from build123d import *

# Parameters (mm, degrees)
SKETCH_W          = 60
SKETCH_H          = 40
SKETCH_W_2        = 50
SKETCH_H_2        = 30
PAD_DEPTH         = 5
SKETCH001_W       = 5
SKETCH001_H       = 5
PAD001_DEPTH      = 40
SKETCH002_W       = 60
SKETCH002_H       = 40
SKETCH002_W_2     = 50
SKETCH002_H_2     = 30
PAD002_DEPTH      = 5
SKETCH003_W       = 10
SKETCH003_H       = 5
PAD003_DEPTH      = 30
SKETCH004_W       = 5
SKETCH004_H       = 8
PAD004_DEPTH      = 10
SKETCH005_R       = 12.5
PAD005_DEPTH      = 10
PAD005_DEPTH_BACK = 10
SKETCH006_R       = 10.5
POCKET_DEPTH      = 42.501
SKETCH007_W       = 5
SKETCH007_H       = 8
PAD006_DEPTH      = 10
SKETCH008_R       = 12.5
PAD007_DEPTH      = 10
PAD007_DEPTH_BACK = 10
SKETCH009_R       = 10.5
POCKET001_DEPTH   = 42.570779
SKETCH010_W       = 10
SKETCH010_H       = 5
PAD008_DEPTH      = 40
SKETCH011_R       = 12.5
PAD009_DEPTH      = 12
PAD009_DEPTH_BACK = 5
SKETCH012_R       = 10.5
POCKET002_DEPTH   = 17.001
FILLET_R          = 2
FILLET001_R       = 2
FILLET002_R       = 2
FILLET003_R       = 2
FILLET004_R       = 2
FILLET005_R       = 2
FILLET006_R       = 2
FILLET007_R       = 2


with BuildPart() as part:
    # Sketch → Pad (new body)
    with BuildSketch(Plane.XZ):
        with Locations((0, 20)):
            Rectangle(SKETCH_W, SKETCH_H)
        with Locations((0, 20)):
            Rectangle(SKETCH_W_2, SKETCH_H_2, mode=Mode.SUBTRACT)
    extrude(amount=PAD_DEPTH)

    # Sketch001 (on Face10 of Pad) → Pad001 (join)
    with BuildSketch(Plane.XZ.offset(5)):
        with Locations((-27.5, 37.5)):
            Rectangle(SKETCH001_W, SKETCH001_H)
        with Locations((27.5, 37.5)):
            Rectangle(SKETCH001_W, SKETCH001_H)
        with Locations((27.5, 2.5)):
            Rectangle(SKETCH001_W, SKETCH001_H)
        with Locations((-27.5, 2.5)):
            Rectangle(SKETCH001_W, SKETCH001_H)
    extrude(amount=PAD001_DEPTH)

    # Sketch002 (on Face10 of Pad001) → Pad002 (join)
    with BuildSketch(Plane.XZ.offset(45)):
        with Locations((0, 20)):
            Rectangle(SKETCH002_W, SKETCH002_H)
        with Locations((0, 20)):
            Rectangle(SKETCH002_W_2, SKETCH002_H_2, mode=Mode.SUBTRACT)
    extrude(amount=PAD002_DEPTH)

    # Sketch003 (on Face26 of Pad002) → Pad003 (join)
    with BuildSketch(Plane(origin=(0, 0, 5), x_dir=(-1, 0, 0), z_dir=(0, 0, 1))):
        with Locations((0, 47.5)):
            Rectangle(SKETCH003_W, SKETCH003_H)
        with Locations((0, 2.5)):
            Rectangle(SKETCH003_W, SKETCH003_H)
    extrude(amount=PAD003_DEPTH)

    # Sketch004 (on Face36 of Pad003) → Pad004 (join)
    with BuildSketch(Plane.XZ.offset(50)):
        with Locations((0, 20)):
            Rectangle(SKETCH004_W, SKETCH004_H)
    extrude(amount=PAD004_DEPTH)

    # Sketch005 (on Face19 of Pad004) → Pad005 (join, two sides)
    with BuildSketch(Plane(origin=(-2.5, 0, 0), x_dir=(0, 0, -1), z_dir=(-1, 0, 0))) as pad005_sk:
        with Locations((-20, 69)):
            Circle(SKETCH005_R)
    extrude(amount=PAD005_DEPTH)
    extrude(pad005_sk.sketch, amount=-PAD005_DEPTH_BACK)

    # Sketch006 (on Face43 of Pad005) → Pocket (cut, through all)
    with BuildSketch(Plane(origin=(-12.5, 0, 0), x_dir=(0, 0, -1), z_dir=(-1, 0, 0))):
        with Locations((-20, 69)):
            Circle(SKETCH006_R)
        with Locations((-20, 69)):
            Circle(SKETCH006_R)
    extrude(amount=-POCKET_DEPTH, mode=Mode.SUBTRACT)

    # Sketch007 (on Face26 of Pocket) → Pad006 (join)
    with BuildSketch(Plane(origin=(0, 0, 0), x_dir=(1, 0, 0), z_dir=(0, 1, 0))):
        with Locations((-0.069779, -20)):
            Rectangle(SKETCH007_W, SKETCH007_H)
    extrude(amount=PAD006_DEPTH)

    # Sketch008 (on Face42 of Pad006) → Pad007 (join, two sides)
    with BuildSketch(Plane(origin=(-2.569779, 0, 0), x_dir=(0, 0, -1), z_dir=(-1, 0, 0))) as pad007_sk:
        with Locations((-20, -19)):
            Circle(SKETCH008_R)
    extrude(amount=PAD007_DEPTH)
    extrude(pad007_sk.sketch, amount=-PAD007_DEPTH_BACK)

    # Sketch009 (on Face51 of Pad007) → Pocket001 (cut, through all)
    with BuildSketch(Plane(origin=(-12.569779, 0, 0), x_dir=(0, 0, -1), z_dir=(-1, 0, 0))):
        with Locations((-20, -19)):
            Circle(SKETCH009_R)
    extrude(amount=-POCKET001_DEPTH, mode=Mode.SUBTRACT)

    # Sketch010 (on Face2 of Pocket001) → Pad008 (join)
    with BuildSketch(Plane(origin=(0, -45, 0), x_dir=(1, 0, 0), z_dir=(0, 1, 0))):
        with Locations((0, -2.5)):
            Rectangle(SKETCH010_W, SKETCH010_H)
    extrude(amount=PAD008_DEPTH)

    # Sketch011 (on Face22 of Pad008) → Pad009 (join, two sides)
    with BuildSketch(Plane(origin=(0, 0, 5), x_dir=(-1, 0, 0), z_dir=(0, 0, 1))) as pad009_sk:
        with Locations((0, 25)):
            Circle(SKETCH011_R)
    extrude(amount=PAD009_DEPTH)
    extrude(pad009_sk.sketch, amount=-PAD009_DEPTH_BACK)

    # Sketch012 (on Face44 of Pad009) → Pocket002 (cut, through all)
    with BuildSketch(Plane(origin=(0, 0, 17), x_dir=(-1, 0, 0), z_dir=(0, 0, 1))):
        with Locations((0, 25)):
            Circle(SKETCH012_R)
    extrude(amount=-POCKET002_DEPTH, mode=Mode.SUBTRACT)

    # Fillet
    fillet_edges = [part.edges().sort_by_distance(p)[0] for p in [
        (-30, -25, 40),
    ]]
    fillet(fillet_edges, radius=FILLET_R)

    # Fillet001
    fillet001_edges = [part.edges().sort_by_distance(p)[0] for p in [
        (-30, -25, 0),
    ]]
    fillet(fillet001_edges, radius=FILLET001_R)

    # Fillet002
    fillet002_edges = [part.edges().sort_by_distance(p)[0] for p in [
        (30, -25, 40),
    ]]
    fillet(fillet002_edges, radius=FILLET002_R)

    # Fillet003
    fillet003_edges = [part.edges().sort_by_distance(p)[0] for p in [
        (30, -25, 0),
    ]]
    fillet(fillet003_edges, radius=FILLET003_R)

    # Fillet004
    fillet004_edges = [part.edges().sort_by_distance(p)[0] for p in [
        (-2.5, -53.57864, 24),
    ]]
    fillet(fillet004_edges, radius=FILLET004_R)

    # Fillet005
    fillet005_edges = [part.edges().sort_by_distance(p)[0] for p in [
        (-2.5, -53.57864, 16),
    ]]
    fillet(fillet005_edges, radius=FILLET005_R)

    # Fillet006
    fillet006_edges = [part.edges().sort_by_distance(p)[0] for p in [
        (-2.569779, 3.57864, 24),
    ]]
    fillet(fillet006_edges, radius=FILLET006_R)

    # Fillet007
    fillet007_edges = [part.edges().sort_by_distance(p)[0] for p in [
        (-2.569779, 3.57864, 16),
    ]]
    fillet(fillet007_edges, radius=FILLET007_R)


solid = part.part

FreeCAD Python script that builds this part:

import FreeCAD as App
import Part
import Sketcher


def edges_at(feature, points):
    """Names of the edges that pass closest to the given points."""
    edges = feature.Shape.Edges
    near = lambda p: min(range(len(edges)), key=lambda i: edges[i].distToShape(Part.Vertex(*p))[0])
    return sorted({f"Edge{near(p) + 1}" for p in points})

doc = App.newDocument("Part")
body = doc.addObject("PartDesign::Body", "Body")

sketch1 = body.newObject("Sketcher::SketchObject", "Sketch")
sketch1.AttachmentSupport = (doc.getObject("XZ_Plane"), [""])
sketch1.MapMode = "FlatFace"
sketch1.addGeometry([
    Part.LineSegment(App.Vector(-30, 40, 0), App.Vector(-30, 0, 0)),
    Part.LineSegment(App.Vector(-30, 0, 0), App.Vector(30, 0, 0)),
    Part.LineSegment(App.Vector(30, 0, 0), App.Vector(30, 40, 0)),
    Part.LineSegment(App.Vector(30, 40, 0), App.Vector(-30, 40, 0)),
    Part.LineSegment(App.Vector(25, 5, 0), App.Vector(-25, 5, 0)),
    Part.LineSegment(App.Vector(-25, 5, 0), App.Vector(-25, 35, 0)),
    Part.LineSegment(App.Vector(-25, 35, 0), App.Vector(25, 35, 0)),
    Part.LineSegment(App.Vector(25, 35, 0), App.Vector(25, 5, 0)),
], False)
sketch1.addConstraint([
    Sketcher.Constraint("Coincident", 0, 2, 1, 1),
    Sketcher.Constraint("Coincident", 1, 2, 2, 1),
    Sketcher.Constraint("Coincident", 2, 2, 3, 1),
    Sketcher.Constraint("Coincident", 3, 2, 0, 1),
    Sketcher.Constraint("Coincident", 4, 2, 5, 1),
    Sketcher.Constraint("Coincident", 5, 2, 6, 1),
    Sketcher.Constraint("Coincident", 6, 2, 7, 1),
    Sketcher.Constraint("Coincident", 7, 2, 4, 1),
    Sketcher.Constraint("Vertical", 0),
    Sketcher.Constraint("Horizontal", 1),
    Sketcher.Constraint("Vertical", 2),
    Sketcher.Constraint("Horizontal", 3),
    Sketcher.Constraint("Horizontal", 4),
    Sketcher.Constraint("Vertical", 5),
    Sketcher.Constraint("Horizontal", 6),
    Sketcher.Constraint("Vertical", 7),
    Sketcher.Constraint("Symmetric", 0, 2, 1, 2, -1, 1),
    Sketcher.Constraint("DistanceX", 1, 1, 1, 2, 60.0),
    Sketcher.Constraint("DistanceX", 4, 2, 4, 1, 50.0),
    Sketcher.Constraint("DistanceY", 0, 2, 0, 1, 40.0),
    Sketcher.Constraint("DistanceY", 5, 1, 5, 2, 30.0),
    Sketcher.Constraint("DistanceX", 4, 2, -1, 1, 25.0),
    Sketcher.Constraint("DistanceY", -1, 1, 4, 2, 5.0),
])
pad1 = body.newObject("PartDesign::Pad", "Pad")
pad1.Profile = sketch1
pad1.Length = 5

sketch2 = body.newObject("Sketcher::SketchObject", "Sketch001")
sketch2.AttachmentSupport = (doc.getObject("XZ_Plane"), [""])
sketch2.MapMode = "FlatFace"
sketch2.AttachmentOffset = App.Placement(App.Vector(0, 0, 5), App.Rotation())
sketch2.addGeometry([
    Part.LineSegment(App.Vector(-30, 40, 0), App.Vector(-30, 35, 0)),
    Part.LineSegment(App.Vector(-30, 35, 0), App.Vector(-25, 35, 0)),
    Part.LineSegment(App.Vector(-25, 35, 0), App.Vector(-25, 40, 0)),
    Part.LineSegment(App.Vector(-25, 40, 0), App.Vector(-30, 40, 0)),
    Part.LineSegment(App.Vector(25, 40, 0), App.Vector(25, 35, 0)),
    Part.LineSegment(App.Vector(25, 35, 0), App.Vector(30, 35, 0)),
    Part.LineSegment(App.Vector(30, 35, 0), App.Vector(30, 40, 0)),
    Part.LineSegment(App.Vector(30, 40, 0), App.Vector(25, 40, 0)),
    Part.LineSegment(App.Vector(25, 5, 0), App.Vector(25, 0, 0)),
    Part.LineSegment(App.Vector(25, 0, 0), App.Vector(30, 0, 0)),
    Part.LineSegment(App.Vector(30, 0, 0), App.Vector(30, 5, 0)),
    Part.LineSegment(App.Vector(30, 5, 0), App.Vector(25, 5, 0)),
    Part.LineSegment(App.Vector(-30, 5, 0), App.Vector(-30, 0, 0)),
    Part.LineSegment(App.Vector(-30, 0, 0), App.Vector(-25, 0, 0)),
    Part.LineSegment(App.Vector(-25, 0, 0), App.Vector(-25, 5, 0)),
    Part.LineSegment(App.Vector(-25, 5, 0), App.Vector(-30, 5, 0)),
], False)
sketch2.addConstraint([
    Sketcher.Constraint("Coincident", 0, 2, 1, 1),
    Sketcher.Constraint("Coincident", 1, 2, 2, 1),
    Sketcher.Constraint("Coincident", 2, 2, 3, 1),
    Sketcher.Constraint("Coincident", 3, 2, 0, 1),
    Sketcher.Constraint("Coincident", 4, 2, 5, 1),
    Sketcher.Constraint("Coincident", 5, 2, 6, 1),
    Sketcher.Constraint("Coincident", 6, 2, 7, 1),
    Sketcher.Constraint("Coincident", 7, 2, 4, 1),
    Sketcher.Constraint("Coincident", 8, 2, 9, 1),
    Sketcher.Constraint("Coincident", 9, 2, 10, 1),
    Sketcher.Constraint("Coincident", 10, 2, 11, 1),
    Sketcher.Constraint("Coincident", 11, 2, 8, 1),
    Sketcher.Constraint("Coincident", 12, 2, 13, 1),
    Sketcher.Constraint("Coincident", 13, 2, 14, 1),
    Sketcher.Constraint("Coincident", 14, 2, 15, 1),
    Sketcher.Constraint("Coincident", 15, 2, 12, 1),
    Sketcher.Constraint("Vertical", 0),
    Sketcher.Constraint("Horizontal", 1),
    Sketcher.Constraint("Vertical", 2),
    Sketcher.Constraint("Horizontal", 3),
    Sketcher.Constraint("Vertical", 4),
    Sketcher.Constraint("Horizontal", 5),
    Sketcher.Constraint("Vertical", 6),
    Sketcher.Constraint("Horizontal", 7),
    Sketcher.Constraint("Vertical", 8),
    Sketcher.Constraint("Horizontal", 9),
    Sketcher.Constraint("Vertical", 10),
    Sketcher.Constraint("Horizontal", 11),
    Sketcher.Constraint("Vertical", 12),
    Sketcher.Constraint("Horizontal", 13),
    Sketcher.Constraint("Vertical", 14),
    Sketcher.Constraint("Horizontal", 15),
    Sketcher.Constraint("Symmetric", 9, 2, 12, 2, -1, 1),
    Sketcher.Constraint("Symmetric", 1, 2, 4, 2, -2),
    Sketcher.Constraint("Symmetric", 3, 2, 6, 2, -2),
    Sketcher.Constraint("Symmetric", 8, 2, 13, 2, -2),
    Sketcher.Constraint("Horizontal", 11, 2, 14, 2),
    Sketcher.Constraint("Vertical", 7, 2, 8, 2),
    Sketcher.Constraint("Vertical", 6, 2, 9, 2),
    Sketcher.Constraint("Equal", 15, 0),
    Sketcher.Constraint("Equal", 6, 8),
    Sketcher.Constraint("DistanceX", 1, 1, 1, 2, 5.0),
    Sketcher.Constraint("DistanceX", 0, 2, -1, 1, 30.0),
    Sketcher.Constraint("DistanceY", -1, 1, 0, 2, 35.0),
])
pad2 = body.newObject("PartDesign::Pad", "Pad001")
pad2.Profile = sketch2
pad2.Length = 40

sketch3 = body.newObject("Sketcher::SketchObject", "Sketch002")
sketch3.AttachmentSupport = (doc.getObject("XZ_Plane"), [""])
sketch3.MapMode = "FlatFace"
sketch3.AttachmentOffset = App.Placement(App.Vector(0, 0, 45), App.Rotation())
sketch3.addGeometry([
    Part.LineSegment(App.Vector(-30, 40, 0), App.Vector(-30, 0, 0)),
    Part.LineSegment(App.Vector(-30, 0, 0), App.Vector(30, 0, 0)),
    Part.LineSegment(App.Vector(30, 0, 0), App.Vector(30, 40, 0)),
    Part.LineSegment(App.Vector(30, 40, 0), App.Vector(-30, 40, 0)),
    Part.LineSegment(App.Vector(25, 5, 0), App.Vector(-25, 5, 0)),
    Part.LineSegment(App.Vector(-25, 5, 0), App.Vector(-25, 35, 0)),
    Part.LineSegment(App.Vector(-25, 35, 0), App.Vector(25, 35, 0)),
    Part.LineSegment(App.Vector(25, 35, 0), App.Vector(25, 5, 0)),
], False)
sketch3.addConstraint([
    Sketcher.Constraint("Coincident", 0, 2, 1, 1),
    Sketcher.Constraint("Coincident", 1, 2, 2, 1),
    Sketcher.Constraint("Coincident", 2, 2, 3, 1),
    Sketcher.Constraint("Coincident", 3, 2, 0, 1),
    Sketcher.Constraint("Coincident", 4, 2, 5, 1),
    Sketcher.Constraint("Coincident", 5, 2, 6, 1),
    Sketcher.Constraint("Coincident", 6, 2, 7, 1),
    Sketcher.Constraint("Coincident", 7, 2, 4, 1),
    Sketcher.Constraint("Vertical", 0),
    Sketcher.Constraint("Horizontal", 1),
    Sketcher.Constraint("Vertical", 2),
    Sketcher.Constraint("Horizontal", 3),
    Sketcher.Constraint("Horizontal", 4),
    Sketcher.Constraint("Vertical", 5),
    Sketcher.Constraint("Horizontal", 6),
    Sketcher.Constraint("Vertical", 7),
    Sketcher.Constraint("Symmetric", 0, 2, 1, 2, -1, 1),
    Sketcher.Constraint("DistanceX", 1, 1, 1, 2, 60.0),
    Sketcher.Constraint("DistanceX", 4, 2, 4, 1, 50.0),
    Sketcher.Constraint("DistanceY", 0, 2, 0, 1, 40.0),
    Sketcher.Constraint("DistanceY", 5, 1, 5, 2, 30.0),
    Sketcher.Constraint("DistanceX", 4, 2, -1, 1, 25.0),
    Sketcher.Constraint("DistanceY", -1, 1, 4, 2, 5.0),
])
pad3 = body.newObject("PartDesign::Pad", "Pad002")
pad3.Profile = sketch3
pad3.Length = 5

sketch4 = body.newObject("Sketcher::SketchObject", "Sketch003")
sketch4.AttachmentSupport = (doc.getObject("XY_Plane"), [""])
sketch4.MapMode = "FlatFace"
sketch4.AttachmentOffset = App.Placement(App.Vector(0, 0, 5), App.Rotation())
sketch4.addGeometry([
    Part.LineSegment(App.Vector(5, -50, 0), App.Vector(5, -45, 0)),
    Part.LineSegment(App.Vector(5, -45, 0), App.Vector(-5, -45, 0)),
    Part.LineSegment(App.Vector(-5, -45, 0), App.Vector(-5, -50, 0)),
    Part.LineSegment(App.Vector(-5, -50, 0), App.Vector(5, -50, 0)),
    Part.LineSegment(App.Vector(5, -5, 0), App.Vector(5, 0, 0)),
    Part.LineSegment(App.Vector(5, 0, 0), App.Vector(-5, 0, 0)),
    Part.LineSegment(App.Vector(-5, 0, 0), App.Vector(-5, -5, 0)),
    Part.LineSegment(App.Vector(-5, -5, 0), App.Vector(5, -5, 0)),
], False)
sketch4.addConstraint([
    Sketcher.Constraint("Coincident", 0, 2, 1, 1),
    Sketcher.Constraint("Coincident", 1, 2, 2, 1),
    Sketcher.Constraint("Coincident", 2, 2, 3, 1),
    Sketcher.Constraint("Coincident", 3, 2, 0, 1),
    Sketcher.Constraint("Coincident", 4, 2, 5, 1),
    Sketcher.Constraint("Coincident", 5, 2, 6, 1),
    Sketcher.Constraint("Coincident", 6, 2, 7, 1),
    Sketcher.Constraint("Coincident", 7, 2, 4, 1),
    Sketcher.Constraint("Vertical", 0),
    Sketcher.Constraint("Horizontal", 1),
    Sketcher.Constraint("Vertical", 2),
    Sketcher.Constraint("Horizontal", 3),
    Sketcher.Constraint("Vertical", 4),
    Sketcher.Constraint("Horizontal", 5),
    Sketcher.Constraint("Vertical", 6),
    Sketcher.Constraint("Horizontal", 7),
    Sketcher.Constraint("Symmetric", 4, 2, 5, 2, -1, 1),
    Sketcher.Constraint("Vertical", 3, 2, 4, 2),
    Sketcher.Constraint("Vertical", 2, 2, 5, 2),
    Sketcher.Constraint("Equal", 2, 4),
    Sketcher.Constraint("DistanceX", 1, 2, 1, 1, 10.0),
    Sketcher.Constraint("DistanceY", 0, 1, 0, 2, 5.0),
    Sketcher.Constraint("DistanceY", 0, 2, -1, 1, 45.0),
])
pad4 = body.newObject("PartDesign::Pad", "Pad003")
pad4.Profile = sketch4
pad4.Length = 30

sketch5 = body.newObject("Sketcher::SketchObject", "Sketch004")
sketch5.AttachmentSupport = (doc.getObject("XZ_Plane"), [""])
sketch5.MapMode = "FlatFace"
sketch5.AttachmentOffset = App.Placement(App.Vector(0, 0, 50), App.Rotation())
sketch5.addGeometry([
    Part.LineSegment(App.Vector(-2, 24, 0), App.Vector(-2, 16, 0)),
    Part.LineSegment(App.Vector(-2, 16, 0), App.Vector(2, 16, 0)),
    Part.LineSegment(App.Vector(2, 16, 0), App.Vector(2, 24, 0)),
    Part.LineSegment(App.Vector(2, 24, 0), App.Vector(-2, 24, 0)),
], False)
sketch5.addConstraint([
    Sketcher.Constraint("Coincident", 0, 2, 1, 1),
    Sketcher.Constraint("Coincident", 1, 2, 2, 1),
    Sketcher.Constraint("Coincident", 2, 2, 3, 1),
    Sketcher.Constraint("Coincident", 3, 2, 0, 1),
    Sketcher.Constraint("Vertical", 0),
    Sketcher.Constraint("Horizontal", 1),
    Sketcher.Constraint("Vertical", 2),
    Sketcher.Constraint("Horizontal", 3),
    Sketcher.Constraint("DistanceX", 1, 1, 1, 2, 5.0),
    Sketcher.Constraint("DistanceY", 0, 2, 0, 1, 8.0),
    Sketcher.Constraint("DistanceY", -1, 1, 0, 2, 16.0),
    Sketcher.Constraint("DistanceX", 0, 2, -1, 1, 2.5),
])
pad5 = body.newObject("PartDesign::Pad", "Pad004")
pad5.Profile = sketch5
pad5.Length = 10

sketch6 = body.newObject("Sketcher::SketchObject", "Sketch005")
sketch6.AttachmentSupport = (doc.getObject("YZ_Plane"), [""])
sketch6.MapMode = "FlatFace"
sketch6.AttachmentOffset = App.Placement(App.Vector(0, 0, -2.5), App.Rotation())
sketch6.addGeometry(Part.Circle(App.Vector(-69, 20, 0), App.Vector(0, 0, 1), 12), False)
sketch6.addConstraint([
    Sketcher.Constraint("Diameter", 0, 25.0),
    Sketcher.Constraint("DistanceX", 0, 3, -1, 1, 69.0),
    Sketcher.Constraint("DistanceY", -1, 1, 0, 3, 20.0),
])
pad6 = body.newObject("PartDesign::Pad", "Pad005")
pad6.Profile = sketch6
pad6.Type = "TwoLengths"
pad6.Length = 10
pad6.Length2 = 10
pad6.Reversed = True

sketch7 = body.newObject("Sketcher::SketchObject", "Sketch006")
sketch7.AttachmentSupport = (doc.getObject("YZ_Plane"), [""])
sketch7.MapMode = "FlatFace"
sketch7.AttachmentOffset = App.Placement(App.Vector(0, 0, -12.5), App.Rotation())
sketch7.addGeometry(Part.Circle(App.Vector(-69, 20, 0), App.Vector(0, 0, 1), 10), False)
sketch7.addConstraint([
    Sketcher.Constraint("Diameter", 0, 21.0),
    Sketcher.Constraint("DistanceX", 0, 3, -1, 1, 69.0),
    Sketcher.Constraint("DistanceY", -1, 1, 0, 3, 20.0),
])
pocket1 = body.newObject("PartDesign::Pocket", "Pocket")
pocket1.Profile = sketch7
pocket1.Type = "ThroughAll"
pocket1.Reversed = True

sketch8 = body.newObject("Sketcher::SketchObject", "Sketch007")
sketch8.AttachmentSupport = (doc.getObject("XZ_Plane"), [""])
sketch8.MapMode = "FlatFace"
sketch8.addGeometry([
    Part.LineSegment(App.Vector(-3, 16, 0), App.Vector(-3, 24, 0)),
    Part.LineSegment(App.Vector(-3, 24, 0), App.Vector(2, 24, 0)),
    Part.LineSegment(App.Vector(2, 24, 0), App.Vector(2, 16, 0)),
    Part.LineSegment(App.Vector(2, 16, 0), App.Vector(-3, 16, 0)),
], False)
sketch8.addConstraint([
    Sketcher.Constraint("Coincident", 0, 2, 1, 1),
    Sketcher.Constraint("Coincident", 1, 2, 2, 1),
    Sketcher.Constraint("Coincident", 2, 2, 3, 1),
    Sketcher.Constraint("Coincident", 3, 2, 0, 1),
    Sketcher.Constraint("Vertical", 0),
    Sketcher.Constraint("Horizontal", 1),
    Sketcher.Constraint("Vertical", 2),
    Sketcher.Constraint("Horizontal", 3),
    Sketcher.Constraint("DistanceX", 1, 1, 1, 2, 5.0),
    Sketcher.Constraint("DistanceY", 0, 1, 0, 2, 8.0),
    Sketcher.Constraint("DistanceY", -1, 1, 0, 2, 24.0),
    Sketcher.Constraint("DistanceX", 0, 2, -1, 1, 2.569779),
])
pad7 = body.newObject("PartDesign::Pad", "Pad006")
pad7.Profile = sketch8
pad7.Length = 10
pad7.Reversed = True

sketch9 = body.newObject("Sketcher::SketchObject", "Sketch008")
sketch9.AttachmentSupport = (doc.getObject("YZ_Plane"), [""])
sketch9.MapMode = "FlatFace"
sketch9.AttachmentOffset = App.Placement(App.Vector(0, 0, -2.569779), App.Rotation())
sketch9.addGeometry(Part.Circle(App.Vector(19, 20, 0), App.Vector(0, 0, 1), 12), False)
sketch9.addConstraint([
    Sketcher.Constraint("Diameter", 0, 25.0),
    Sketcher.Constraint("DistanceX", -1, 1, 0, 3, 19.0),
    Sketcher.Constraint("DistanceY", -1, 1, 0, 3, 20.0),
])
pad8 = body.newObject("PartDesign::Pad", "Pad007")
pad8.Profile = sketch9
pad8.Type = "TwoLengths"
pad8.Length = 10
pad8.Length2 = 10
pad8.Reversed = True

sketch10 = body.newObject("Sketcher::SketchObject", "Sketch009")
sketch10.AttachmentSupport = (doc.getObject("YZ_Plane"), [""])
sketch10.MapMode = "FlatFace"
sketch10.AttachmentOffset = App.Placement(App.Vector(0, 0, -12.569779), App.Rotation())
sketch10.addGeometry(Part.Circle(App.Vector(19, 20, 0), App.Vector(0, 0, 1), 10), False)
sketch10.addConstraint([
    Sketcher.Constraint("Diameter", 0, 21.0),
    Sketcher.Constraint("DistanceX", -1, 1, 0, 3, 19.0),
    Sketcher.Constraint("DistanceY", -1, 1, 0, 3, 20.0),
])
pocket2 = body.newObject("PartDesign::Pocket", "Pocket001")
pocket2.Profile = sketch10
pocket2.Type = "ThroughAll"
pocket2.Reversed = True

sketch11 = body.newObject("Sketcher::SketchObject", "Sketch010")
sketch11.AttachmentSupport = (doc.getObject("XZ_Plane"), [""])
sketch11.MapMode = "FlatFace"
sketch11.AttachmentOffset = App.Placement(App.Vector(0, 0, 45), App.Rotation())
sketch11.addGeometry([
    Part.LineSegment(App.Vector(-5, 0, 0), App.Vector(-5, 5, 0)),
    Part.LineSegment(App.Vector(-5, 5, 0), App.Vector(5, 5, 0)),
    Part.LineSegment(App.Vector(5, 5, 0), App.Vector(5, 0, 0)),
    Part.LineSegment(App.Vector(5, 0, 0), App.Vector(-5, 0, 0)),
], False)
sketch11.addConstraint([
    Sketcher.Constraint("Coincident", 0, 2, 1, 1),
    Sketcher.Constraint("Coincident", 1, 2, 2, 1),
    Sketcher.Constraint("Coincident", 2, 2, 3, 1),
    Sketcher.Constraint("Coincident", 3, 2, 0, 1),
    Sketcher.Constraint("Vertical", 0),
    Sketcher.Constraint("Horizontal", 1),
    Sketcher.Constraint("Vertical", 2),
    Sketcher.Constraint("Horizontal", 3),
    Sketcher.Constraint("Symmetric", 2, 2, 3, 2, -1, 1),
    Sketcher.Constraint("DistanceX", 1, 1, 1, 2, 10.0),
    Sketcher.Constraint("DistanceY", 0, 1, 0, 2, 5.0),
])
pad9 = body.newObject("PartDesign::Pad", "Pad008")
pad9.Profile = sketch11
pad9.Length = 40
pad9.Reversed = True

sketch12 = body.newObject("Sketcher::SketchObject", "Sketch011")
sketch12.AttachmentSupport = (doc.getObject("XY_Plane"), [""])
sketch12.MapMode = "FlatFace"
sketch12.AttachmentOffset = App.Placement(App.Vector(0, 0, 5), App.Rotation())
sketch12.addGeometry(Part.Circle(App.Vector(0, -25, 0), App.Vector(0, 0, 1), 12), False)
sketch12.addConstraint([
    Sketcher.Constraint("PointOnObject", 0, 3, -2),
    Sketcher.Constraint("Diameter", 0, 25.0),
    Sketcher.Constraint("DistanceY", 0, 3, -1, 1, 25.0),
])
pad10 = body.newObject("PartDesign::Pad", "Pad009")
pad10.Profile = sketch12
pad10.Type = "TwoLengths"
pad10.Length = 12
pad10.Length2 = 5

sketch13 = body.newObject("Sketcher::SketchObject", "Sketch012")
sketch13.AttachmentSupport = (doc.getObject("XY_Plane"), [""])
sketch13.MapMode = "FlatFace"
sketch13.AttachmentOffset = App.Placement(App.Vector(0, 0, 17), App.Rotation())
sketch13.addGeometry(Part.Circle(App.Vector(0, -25, 0), App.Vector(0, 0, 1), 10), False)
sketch13.addConstraint([
    Sketcher.Constraint("PointOnObject", 0, 3, -2),
    Sketcher.Constraint("Diameter", 0, 21.0),
    Sketcher.Constraint("DistanceY", 0, 3, -1, 1, 25.0),
])
pocket3 = body.newObject("PartDesign::Pocket", "Pocket002")
pocket3.Profile = sketch13
pocket3.Type = "ThroughAll"
doc.recompute()

fillet = body.newObject("PartDesign::Fillet", "Fillet")
fillet.Base = (pocket3, edges_at(pocket3, [(-30, -25, 40)]))
fillet.Radius = 2
doc.recompute()

fillet2 = body.newObject("PartDesign::Fillet", "Fillet001")
fillet2.Base = (fillet, edges_at(fillet, [(-30, -25, 0)]))
fillet2.Radius = 2
doc.recompute()

fillet3 = body.newObject("PartDesign::Fillet", "Fillet002")
fillet3.Base = (fillet2, edges_at(fillet2, [(30, -25, 40)]))
fillet3.Radius = 2
doc.recompute()

fillet4 = body.newObject("PartDesign::Fillet", "Fillet003")
fillet4.Base = (fillet3, edges_at(fillet3, [(30, -25, 0)]))
fillet4.Radius = 2
doc.recompute()

fillet5 = body.newObject("PartDesign::Fillet", "Fillet004")
fillet5.Base = (fillet4, edges_at(fillet4, [(-2.5, -53.579, 24)]))
fillet5.Radius = 2
doc.recompute()

fillet6 = body.newObject("PartDesign::Fillet", "Fillet005")
fillet6.Base = (fillet5, edges_at(fillet5, [(-2.5, -53.579, 16)]))
fillet6.Radius = 2
doc.recompute()

fillet7 = body.newObject("PartDesign::Fillet", "Fillet006")
fillet7.Base = (fillet6, edges_at(fillet6, [(-2.57, 3.579, 24)]))
fillet7.Radius = 2
doc.recompute()

fillet8 = body.newObject("PartDesign::Fillet", "Fillet007")
fillet8.Base = (fillet7, edges_at(fillet7, [(-2.57, 3.579, 16)]))
fillet8.Radius = 2

doc.recompute()
